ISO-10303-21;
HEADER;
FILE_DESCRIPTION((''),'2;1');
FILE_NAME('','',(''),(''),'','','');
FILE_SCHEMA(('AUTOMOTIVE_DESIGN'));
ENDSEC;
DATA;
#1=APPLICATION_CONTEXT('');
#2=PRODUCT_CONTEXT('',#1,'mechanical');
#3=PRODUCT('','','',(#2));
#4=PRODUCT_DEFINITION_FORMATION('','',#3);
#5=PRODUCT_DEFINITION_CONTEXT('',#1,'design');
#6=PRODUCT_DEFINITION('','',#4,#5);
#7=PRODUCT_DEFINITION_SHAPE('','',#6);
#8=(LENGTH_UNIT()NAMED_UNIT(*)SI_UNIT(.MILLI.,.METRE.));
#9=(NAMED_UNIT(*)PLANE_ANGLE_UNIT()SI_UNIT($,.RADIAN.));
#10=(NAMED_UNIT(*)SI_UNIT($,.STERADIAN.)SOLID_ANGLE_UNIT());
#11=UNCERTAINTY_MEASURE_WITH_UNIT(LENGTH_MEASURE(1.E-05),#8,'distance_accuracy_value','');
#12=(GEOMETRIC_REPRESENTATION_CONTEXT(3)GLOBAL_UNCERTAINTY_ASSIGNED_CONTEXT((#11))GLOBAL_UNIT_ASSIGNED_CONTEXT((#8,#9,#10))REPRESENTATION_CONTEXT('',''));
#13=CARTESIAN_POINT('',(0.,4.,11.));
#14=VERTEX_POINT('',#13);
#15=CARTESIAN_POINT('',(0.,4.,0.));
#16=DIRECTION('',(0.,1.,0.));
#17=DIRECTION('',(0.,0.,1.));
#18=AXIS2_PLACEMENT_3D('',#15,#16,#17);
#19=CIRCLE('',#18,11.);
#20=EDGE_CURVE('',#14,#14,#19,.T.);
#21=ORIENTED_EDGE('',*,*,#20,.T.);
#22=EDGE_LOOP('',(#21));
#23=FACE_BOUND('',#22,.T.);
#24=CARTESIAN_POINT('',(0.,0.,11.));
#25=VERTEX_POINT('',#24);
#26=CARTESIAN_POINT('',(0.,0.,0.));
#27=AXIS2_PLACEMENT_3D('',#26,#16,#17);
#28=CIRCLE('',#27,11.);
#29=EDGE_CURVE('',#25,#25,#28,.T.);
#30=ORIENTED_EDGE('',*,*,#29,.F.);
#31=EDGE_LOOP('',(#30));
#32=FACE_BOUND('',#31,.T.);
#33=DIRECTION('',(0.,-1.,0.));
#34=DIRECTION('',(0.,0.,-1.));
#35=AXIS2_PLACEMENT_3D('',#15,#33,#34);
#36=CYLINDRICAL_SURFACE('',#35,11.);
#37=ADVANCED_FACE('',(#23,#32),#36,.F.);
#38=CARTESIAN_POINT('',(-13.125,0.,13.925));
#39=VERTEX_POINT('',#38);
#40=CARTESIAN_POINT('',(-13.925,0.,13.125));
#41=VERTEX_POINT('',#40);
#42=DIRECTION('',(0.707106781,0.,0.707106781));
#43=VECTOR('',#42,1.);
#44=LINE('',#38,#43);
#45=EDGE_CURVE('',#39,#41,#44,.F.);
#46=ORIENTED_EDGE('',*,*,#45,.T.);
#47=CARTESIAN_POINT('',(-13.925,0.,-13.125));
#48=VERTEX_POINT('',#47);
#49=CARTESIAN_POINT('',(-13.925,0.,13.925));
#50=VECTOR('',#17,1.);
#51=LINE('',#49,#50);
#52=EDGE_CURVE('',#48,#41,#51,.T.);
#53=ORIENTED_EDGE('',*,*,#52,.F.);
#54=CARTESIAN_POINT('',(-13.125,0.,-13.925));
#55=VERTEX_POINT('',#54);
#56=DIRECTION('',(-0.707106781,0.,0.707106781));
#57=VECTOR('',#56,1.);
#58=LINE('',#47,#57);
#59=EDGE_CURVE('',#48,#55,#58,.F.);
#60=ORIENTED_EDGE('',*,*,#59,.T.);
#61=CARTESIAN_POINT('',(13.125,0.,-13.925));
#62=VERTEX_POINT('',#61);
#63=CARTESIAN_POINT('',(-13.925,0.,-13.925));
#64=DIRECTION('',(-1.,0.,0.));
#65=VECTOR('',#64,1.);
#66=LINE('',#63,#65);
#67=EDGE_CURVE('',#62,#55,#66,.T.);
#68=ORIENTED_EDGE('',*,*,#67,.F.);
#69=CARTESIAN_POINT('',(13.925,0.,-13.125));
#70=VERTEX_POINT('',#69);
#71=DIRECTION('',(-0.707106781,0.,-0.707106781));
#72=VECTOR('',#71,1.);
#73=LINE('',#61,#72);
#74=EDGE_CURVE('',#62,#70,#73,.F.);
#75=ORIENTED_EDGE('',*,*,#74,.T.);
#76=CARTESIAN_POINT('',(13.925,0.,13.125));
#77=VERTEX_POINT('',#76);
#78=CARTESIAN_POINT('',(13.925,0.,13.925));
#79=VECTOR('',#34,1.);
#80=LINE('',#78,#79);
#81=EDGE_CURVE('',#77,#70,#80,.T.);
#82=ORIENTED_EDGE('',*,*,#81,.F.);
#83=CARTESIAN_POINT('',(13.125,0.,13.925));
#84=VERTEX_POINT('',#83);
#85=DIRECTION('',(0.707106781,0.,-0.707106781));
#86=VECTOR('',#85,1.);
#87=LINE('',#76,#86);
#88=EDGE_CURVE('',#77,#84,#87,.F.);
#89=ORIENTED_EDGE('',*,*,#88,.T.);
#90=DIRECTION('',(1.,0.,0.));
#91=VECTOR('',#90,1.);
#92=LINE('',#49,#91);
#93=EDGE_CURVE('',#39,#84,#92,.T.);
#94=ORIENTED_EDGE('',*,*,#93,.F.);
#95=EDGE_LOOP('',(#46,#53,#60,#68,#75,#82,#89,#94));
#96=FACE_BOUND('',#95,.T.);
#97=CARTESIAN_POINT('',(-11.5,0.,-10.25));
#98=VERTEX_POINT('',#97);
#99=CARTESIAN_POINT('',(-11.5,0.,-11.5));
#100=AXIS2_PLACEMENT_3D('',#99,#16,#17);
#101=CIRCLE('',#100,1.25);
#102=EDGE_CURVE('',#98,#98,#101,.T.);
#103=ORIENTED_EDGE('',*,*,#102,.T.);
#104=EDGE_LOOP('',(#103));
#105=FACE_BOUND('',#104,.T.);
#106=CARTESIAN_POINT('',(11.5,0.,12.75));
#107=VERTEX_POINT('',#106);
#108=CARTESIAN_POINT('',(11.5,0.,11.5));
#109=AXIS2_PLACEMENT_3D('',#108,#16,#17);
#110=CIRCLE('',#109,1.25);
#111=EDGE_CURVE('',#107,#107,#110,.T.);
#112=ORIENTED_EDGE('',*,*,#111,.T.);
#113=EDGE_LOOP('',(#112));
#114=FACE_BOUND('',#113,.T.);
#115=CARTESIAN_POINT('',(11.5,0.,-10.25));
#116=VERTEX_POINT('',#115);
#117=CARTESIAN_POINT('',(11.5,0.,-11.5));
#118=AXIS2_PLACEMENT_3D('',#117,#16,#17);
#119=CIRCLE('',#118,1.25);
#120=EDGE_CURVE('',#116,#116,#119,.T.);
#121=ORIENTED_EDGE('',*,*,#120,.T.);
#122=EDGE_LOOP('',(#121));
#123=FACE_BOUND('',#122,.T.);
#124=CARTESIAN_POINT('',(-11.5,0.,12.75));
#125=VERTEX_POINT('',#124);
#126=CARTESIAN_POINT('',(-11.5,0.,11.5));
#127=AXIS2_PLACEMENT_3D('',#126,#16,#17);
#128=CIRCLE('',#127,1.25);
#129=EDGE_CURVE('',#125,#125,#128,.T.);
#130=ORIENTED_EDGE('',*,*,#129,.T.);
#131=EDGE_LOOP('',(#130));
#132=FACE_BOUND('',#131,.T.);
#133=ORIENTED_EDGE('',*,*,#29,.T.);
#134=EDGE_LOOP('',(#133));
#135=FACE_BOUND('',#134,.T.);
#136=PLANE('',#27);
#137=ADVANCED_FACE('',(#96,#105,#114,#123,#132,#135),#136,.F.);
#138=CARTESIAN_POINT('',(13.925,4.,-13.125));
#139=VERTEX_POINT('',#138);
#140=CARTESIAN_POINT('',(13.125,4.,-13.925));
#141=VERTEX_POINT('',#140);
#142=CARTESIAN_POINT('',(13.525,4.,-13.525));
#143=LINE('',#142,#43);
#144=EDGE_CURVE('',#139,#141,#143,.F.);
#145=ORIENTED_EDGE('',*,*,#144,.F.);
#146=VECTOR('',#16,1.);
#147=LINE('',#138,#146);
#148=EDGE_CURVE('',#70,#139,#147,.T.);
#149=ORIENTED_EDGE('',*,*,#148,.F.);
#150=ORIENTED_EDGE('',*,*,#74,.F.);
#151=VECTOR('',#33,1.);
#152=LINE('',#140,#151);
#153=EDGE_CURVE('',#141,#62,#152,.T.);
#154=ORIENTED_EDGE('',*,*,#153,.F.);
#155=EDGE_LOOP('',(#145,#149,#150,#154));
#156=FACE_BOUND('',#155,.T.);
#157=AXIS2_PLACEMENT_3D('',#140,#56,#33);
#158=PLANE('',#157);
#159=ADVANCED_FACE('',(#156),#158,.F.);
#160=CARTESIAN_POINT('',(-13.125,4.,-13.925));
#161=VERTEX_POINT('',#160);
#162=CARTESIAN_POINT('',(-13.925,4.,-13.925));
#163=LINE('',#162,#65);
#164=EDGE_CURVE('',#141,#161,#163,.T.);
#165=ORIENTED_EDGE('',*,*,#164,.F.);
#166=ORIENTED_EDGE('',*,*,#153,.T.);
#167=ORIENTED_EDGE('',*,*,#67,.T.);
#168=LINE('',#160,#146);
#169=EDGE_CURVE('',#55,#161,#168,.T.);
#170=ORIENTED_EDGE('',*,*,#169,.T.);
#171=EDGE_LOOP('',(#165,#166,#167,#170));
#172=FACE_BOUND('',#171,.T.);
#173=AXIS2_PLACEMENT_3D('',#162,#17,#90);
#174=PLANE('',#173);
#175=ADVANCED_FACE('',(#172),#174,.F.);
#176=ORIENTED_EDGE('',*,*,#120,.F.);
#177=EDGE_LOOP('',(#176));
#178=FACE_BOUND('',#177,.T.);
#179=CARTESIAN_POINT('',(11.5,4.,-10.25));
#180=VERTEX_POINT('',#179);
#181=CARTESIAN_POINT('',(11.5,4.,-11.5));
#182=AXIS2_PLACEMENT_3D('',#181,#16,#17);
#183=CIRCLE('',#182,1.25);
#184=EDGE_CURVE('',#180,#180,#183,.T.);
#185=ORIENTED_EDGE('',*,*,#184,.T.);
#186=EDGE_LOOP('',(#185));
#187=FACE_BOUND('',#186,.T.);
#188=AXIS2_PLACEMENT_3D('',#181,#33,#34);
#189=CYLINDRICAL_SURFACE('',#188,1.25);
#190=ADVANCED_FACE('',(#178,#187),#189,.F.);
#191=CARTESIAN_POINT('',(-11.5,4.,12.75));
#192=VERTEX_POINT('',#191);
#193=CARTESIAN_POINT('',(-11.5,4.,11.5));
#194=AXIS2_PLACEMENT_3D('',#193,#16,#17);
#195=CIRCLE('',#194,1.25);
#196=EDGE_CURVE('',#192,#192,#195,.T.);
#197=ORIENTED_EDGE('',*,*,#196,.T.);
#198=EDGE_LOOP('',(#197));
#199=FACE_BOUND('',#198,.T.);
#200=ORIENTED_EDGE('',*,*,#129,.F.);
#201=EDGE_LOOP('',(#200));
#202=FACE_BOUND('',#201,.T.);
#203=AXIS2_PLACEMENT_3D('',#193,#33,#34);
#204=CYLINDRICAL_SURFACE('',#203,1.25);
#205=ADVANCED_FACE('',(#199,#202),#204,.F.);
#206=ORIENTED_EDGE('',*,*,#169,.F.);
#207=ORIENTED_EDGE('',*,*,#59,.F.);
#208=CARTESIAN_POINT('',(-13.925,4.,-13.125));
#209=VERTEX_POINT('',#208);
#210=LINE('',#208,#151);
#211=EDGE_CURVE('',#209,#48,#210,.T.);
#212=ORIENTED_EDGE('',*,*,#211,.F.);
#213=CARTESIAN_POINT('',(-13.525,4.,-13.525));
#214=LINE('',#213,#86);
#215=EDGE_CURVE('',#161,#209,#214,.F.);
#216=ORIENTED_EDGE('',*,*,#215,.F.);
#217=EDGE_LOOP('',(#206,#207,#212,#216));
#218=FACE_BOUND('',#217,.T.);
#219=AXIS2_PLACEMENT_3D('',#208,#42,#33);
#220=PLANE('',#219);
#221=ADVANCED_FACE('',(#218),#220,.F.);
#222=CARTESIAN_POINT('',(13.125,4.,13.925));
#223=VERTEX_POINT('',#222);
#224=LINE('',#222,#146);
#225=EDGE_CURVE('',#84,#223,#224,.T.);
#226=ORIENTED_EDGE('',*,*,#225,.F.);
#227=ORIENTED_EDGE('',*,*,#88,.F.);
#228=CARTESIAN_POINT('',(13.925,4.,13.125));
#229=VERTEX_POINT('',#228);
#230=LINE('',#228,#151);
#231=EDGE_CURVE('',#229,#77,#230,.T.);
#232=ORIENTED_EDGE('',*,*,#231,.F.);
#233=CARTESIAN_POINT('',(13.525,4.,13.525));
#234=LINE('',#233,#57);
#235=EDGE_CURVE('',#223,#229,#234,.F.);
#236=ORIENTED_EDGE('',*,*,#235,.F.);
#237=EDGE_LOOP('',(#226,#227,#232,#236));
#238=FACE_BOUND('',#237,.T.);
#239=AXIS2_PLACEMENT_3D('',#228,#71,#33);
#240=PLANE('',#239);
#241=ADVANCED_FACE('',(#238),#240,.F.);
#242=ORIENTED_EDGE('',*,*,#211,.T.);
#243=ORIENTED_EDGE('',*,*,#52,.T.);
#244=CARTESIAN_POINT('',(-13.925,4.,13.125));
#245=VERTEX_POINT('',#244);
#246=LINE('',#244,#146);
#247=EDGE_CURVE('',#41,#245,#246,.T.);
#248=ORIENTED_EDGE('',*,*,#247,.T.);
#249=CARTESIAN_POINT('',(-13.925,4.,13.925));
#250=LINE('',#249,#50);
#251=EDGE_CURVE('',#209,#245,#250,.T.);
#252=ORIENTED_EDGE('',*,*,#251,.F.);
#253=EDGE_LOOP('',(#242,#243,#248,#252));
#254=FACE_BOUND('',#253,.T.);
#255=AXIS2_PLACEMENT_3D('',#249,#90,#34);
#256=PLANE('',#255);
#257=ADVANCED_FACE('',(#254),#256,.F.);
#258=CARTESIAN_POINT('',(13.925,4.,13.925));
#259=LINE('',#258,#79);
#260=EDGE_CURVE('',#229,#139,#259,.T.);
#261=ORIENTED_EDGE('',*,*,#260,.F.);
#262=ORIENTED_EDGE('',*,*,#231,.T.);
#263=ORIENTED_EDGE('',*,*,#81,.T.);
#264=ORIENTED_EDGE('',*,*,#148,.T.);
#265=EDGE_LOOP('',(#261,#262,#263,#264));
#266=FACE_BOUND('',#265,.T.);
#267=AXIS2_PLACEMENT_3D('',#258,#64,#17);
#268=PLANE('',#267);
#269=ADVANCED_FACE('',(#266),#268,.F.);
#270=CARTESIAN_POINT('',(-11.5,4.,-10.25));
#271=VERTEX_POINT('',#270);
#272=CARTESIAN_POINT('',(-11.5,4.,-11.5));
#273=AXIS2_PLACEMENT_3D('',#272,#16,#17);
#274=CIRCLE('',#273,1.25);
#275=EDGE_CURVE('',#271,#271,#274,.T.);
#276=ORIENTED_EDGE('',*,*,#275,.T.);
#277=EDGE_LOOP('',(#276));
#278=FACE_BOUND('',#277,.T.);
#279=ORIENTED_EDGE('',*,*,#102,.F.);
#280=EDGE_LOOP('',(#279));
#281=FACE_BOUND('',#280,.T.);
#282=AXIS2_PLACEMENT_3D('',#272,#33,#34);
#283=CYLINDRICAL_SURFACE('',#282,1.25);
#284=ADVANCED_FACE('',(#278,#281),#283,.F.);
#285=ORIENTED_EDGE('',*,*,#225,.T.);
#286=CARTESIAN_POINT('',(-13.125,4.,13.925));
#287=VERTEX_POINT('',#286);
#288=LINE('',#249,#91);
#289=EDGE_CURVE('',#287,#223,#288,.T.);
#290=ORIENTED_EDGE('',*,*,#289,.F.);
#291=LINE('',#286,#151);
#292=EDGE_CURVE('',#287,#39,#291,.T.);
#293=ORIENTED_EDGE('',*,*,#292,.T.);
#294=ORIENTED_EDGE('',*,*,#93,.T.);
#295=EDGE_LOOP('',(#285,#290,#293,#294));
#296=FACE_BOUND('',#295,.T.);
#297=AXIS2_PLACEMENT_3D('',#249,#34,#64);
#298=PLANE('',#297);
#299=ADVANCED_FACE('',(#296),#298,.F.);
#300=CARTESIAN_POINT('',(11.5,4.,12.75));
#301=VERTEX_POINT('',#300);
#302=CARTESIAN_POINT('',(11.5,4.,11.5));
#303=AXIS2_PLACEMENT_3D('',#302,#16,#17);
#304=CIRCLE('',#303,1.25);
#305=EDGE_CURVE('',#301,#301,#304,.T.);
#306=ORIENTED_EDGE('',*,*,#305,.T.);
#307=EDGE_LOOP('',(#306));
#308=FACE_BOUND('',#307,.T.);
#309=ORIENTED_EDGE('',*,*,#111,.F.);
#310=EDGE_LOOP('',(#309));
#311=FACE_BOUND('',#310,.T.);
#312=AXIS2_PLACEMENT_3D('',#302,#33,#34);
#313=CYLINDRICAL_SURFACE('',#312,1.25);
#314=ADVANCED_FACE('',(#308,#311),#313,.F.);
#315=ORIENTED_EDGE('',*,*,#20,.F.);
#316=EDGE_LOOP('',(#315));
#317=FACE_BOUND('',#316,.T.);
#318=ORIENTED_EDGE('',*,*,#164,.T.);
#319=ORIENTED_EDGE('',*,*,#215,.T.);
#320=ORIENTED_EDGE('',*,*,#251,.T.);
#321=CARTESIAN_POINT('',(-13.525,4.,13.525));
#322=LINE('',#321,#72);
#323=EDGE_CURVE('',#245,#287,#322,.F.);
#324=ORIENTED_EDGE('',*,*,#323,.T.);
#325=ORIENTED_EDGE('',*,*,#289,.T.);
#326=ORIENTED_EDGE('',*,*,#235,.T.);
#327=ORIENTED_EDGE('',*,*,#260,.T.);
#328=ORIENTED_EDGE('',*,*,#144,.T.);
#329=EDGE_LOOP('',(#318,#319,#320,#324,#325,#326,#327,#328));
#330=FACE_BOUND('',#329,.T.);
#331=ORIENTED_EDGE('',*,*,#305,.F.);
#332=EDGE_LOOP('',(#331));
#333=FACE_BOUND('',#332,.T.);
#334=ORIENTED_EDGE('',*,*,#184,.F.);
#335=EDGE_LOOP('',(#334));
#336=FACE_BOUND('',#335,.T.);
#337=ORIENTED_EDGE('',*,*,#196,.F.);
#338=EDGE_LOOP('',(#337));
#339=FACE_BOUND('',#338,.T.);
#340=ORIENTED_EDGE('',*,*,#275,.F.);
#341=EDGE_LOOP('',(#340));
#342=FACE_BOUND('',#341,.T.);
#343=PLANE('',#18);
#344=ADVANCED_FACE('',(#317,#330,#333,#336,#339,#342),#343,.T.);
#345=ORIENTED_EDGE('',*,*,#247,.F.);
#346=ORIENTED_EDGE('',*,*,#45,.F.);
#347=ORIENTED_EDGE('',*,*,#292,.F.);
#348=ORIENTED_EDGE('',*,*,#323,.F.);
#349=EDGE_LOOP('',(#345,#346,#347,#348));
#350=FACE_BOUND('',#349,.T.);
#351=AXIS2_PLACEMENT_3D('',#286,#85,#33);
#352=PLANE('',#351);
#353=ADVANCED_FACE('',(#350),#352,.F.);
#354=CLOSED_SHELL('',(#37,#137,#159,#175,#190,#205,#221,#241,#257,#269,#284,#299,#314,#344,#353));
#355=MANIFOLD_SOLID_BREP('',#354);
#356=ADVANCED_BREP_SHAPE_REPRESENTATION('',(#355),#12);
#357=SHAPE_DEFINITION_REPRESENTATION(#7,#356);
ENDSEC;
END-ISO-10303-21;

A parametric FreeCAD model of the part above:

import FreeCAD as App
import Part
import Sketcher


def edges_at(feature, points):
    """Names of the edges that pass closest to the given points."""
    edges = feature.Shape.Edges
    near = lambda p: min(range(len(edges)), key=lambda i: edges[i].distToShape(Part.Vertex(*p))[0])
    return sorted({f"Edge{near(p) + 1}" for p in points})


def add_polygon(sketch, points):
    """Adds a closed chain of lines whose ends are joined by coincident constraints."""
    first, n = sketch.GeometryCount, len(points)
    for a, b in zip(points, points[1:] + points[:1]):
        sketch.addGeometry(Part.LineSegment(App.Vector(*a, 0), App.Vector(*b, 0)), False)
    for i in range(n):
        sketch.addConstraint(Sketcher.Constraint("Coincident", first + i, 2, first + (i + 1) % n, 1))

doc = App.newDocument("Part")
body = doc.addObject("PartDesign::Body", "Body")

# Sketch on XZ plane
sketch1 = body.newObject("Sketcher::SketchObject", "Sketch")
sketch1.AttachmentSupport = (doc.getObject("XZ_Plane"), [""])
sketch1.MapMode = "FlatFace"
add_polygon(sketch1, [(-13.9, -13.9), (-13.9, 13.9), (13.9, 13.9), (13.9, -13.9)])  # lines 0-3
sketch1.addGeometry(Part.Circle(App.Vector(-11.5, 11.5, 0), App.Vector(0, 0, 1), 1.2), False)  # 4
sketch1.addGeometry(Part.Circle(App.Vector(11.5, 11.5, 0), App.Vector(0, 0, 1), 1.2), False)  # 5
sketch1.addGeometry(Part.Circle(App.Vector(-11.5, -11.5, 0), App.Vector(0, 0, 1), 1.2), False)  # 6
sketch1.addGeometry(Part.Circle(App.Vector(0, 0, 0), App.Vector(0, 0, 1), 11), False)  # 7
sketch1.addGeometry(Part.Circle(App.Vector(11.5, -11.5, 0), App.Vector(0, 0, 1), 1.2), False)  # 8
sketch1.addConstraint([
    Sketcher.Constraint("Vertical", 0),
    Sketcher.Constraint("Horizontal", 1),
    Sketcher.Constraint("Vertical", 2),
    Sketcher.Constraint("Horizontal", 3),
    Sketcher.Constraint("Coincident", 7, 3, -1, 1),
    Sketcher.Constraint("Equal", 4, 5),
    Sketcher.Constraint("Equal", 5, 6),
    Sketcher.Constraint("Equal", 6, 8),
    Sketcher.Constraint("Symmetric", 5, 3, 6, 3, -1, 1),
    Sketcher.Constraint("Symmetric", 4, 3, 8, 3, -1, 1),
    Sketcher.Constraint("Symmetric", 0, 2, 2, 2, -1, 1),
    Sketcher.Constraint("Symmetric", 4, 3, 5, 3, -2),
    Sketcher.Constraint("Equal", 3, 0),
    Sketcher.Constraint("Diameter", 7, 22.0),
    Sketcher.Constraint("Diameter", 4, 2.5),
    Sketcher.Constraint("DistanceX", 4, 3, 5, 3, 23.0),
    Sketcher.Constraint("DistanceY", 6, 3, 4, 3, 23.0),
    Sketcher.Constraint("DistanceX", 1, 1, 1, 2, 27.85),
])
pad1 = body.newObject("PartDesign::Pad", "Pad")
pad1.Profile = sketch1
pad1.Length = 4
pad1.Reversed = True
doc.recompute()

chamfer = body.newObject("PartDesign::Chamfer", "Chamfer")
chamfer.Base = (pad1, edges_at(pad1, [
    (13.925, 2, -13.925),
    (13.925, 2, 13.925),
    (-13.925, 2, 13.925),
    (-13.925, 2, -13.925),
]))
chamfer.Size = 0.8

doc.recompute()
